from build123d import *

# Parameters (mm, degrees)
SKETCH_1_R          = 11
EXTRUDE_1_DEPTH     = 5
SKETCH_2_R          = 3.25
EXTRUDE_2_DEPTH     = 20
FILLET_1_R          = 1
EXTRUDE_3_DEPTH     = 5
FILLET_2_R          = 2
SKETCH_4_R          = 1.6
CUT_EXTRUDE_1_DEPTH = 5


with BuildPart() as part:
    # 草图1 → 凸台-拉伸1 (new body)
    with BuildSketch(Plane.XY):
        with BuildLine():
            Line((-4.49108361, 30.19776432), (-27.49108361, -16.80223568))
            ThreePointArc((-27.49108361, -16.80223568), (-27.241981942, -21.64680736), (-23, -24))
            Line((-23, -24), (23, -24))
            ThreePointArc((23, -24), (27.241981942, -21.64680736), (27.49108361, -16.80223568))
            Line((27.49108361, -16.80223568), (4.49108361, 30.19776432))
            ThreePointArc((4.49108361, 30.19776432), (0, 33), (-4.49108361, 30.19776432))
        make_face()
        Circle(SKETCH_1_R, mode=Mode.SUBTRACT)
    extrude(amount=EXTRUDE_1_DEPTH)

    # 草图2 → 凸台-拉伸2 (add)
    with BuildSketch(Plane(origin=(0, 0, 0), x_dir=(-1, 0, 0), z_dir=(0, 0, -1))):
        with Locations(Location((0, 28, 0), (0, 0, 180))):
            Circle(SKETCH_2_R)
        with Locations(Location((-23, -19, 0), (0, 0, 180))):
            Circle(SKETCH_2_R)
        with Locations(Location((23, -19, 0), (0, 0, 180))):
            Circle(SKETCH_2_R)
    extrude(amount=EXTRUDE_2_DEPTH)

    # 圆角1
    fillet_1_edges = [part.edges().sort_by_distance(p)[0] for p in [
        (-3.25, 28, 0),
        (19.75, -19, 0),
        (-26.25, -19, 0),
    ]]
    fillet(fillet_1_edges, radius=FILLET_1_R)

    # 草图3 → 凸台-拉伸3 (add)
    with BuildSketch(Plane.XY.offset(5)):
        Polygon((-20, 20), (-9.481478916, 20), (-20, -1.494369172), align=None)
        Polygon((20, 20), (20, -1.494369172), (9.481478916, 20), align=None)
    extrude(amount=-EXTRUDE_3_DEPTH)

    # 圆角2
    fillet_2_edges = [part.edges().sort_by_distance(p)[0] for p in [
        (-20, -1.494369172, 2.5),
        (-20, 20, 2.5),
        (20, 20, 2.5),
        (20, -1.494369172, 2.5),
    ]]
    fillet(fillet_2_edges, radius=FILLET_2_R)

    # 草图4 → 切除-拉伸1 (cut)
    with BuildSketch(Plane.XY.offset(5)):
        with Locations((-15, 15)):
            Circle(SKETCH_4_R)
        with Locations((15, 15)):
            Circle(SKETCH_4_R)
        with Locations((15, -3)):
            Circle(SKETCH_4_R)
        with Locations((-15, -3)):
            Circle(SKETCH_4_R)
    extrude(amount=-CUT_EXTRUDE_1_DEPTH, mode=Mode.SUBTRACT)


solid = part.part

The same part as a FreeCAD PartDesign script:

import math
import FreeCAD as App
import Part
import Sketcher

V = App.Vector
Q = App.Units.Quantity


def edges_at(feature, points):
    """Names of the edges that pass closest to the given points."""
    edges = feature.Shape.Edges
    near = lambda p: min(range(len(edges)), key=lambda i: edges[i].distToShape(Part.Vertex(*p))[0])
    return sorted({f"Edge{near(p) + 1}" for p in points})

doc = App.newDocument("Part")
params = doc.addObject("Spreadsheet::Sheet", "Params")
for row, (alias, value) in enumerate([
    ("sketch1_diameter", "22 mm"),
    ("sketch1_radius", "5 mm"),
    ("sketch1_width", "46 mm"),
    ("pad1_length", "5 mm"),
    ("sketch2_diameter", "6.5 mm"),
    ("pad2_length", "20 mm"),
    ("fillet_radius", "1 mm"),
    ("pad3_length", "5 mm"),
    ("fillet2_radius", "2 mm"),
    ("sketch4_diameter", "3.2 mm"),
    ("pocket1_length", "5 mm"),
], start=1):
    params.set(f"A{row}", alias)
    params.set(f"B{row}", "=" + value)
    params.setAlias(f"B{row}", alias)

body = doc.addObject("PartDesign::Body", "Body")

sketch1 = body.newObject("Sketcher::SketchObject", "Sketch")
sketch1.AttachmentSupport = (doc.getObject("XY_Plane"), [""])
sketch1.MapMode = "FlatFace"
sketch1.addGeometry([
    Part.LineSegment(V(-4, 30, 0), V(-27, -17, 0)),
    Part.ArcOfCircle(Part.Circle(V(-23, -19, 0), V(0, 0, 1), 5), math.radians(154), math.radians(270)),
    Part.LineSegment(V(-23, -24, 0), V(23, -24, 0)),
    Part.ArcOfCircle(Part.Circle(V(23, -19, 0), V(0, 0, 1), 5), math.radians(-90), math.radians(26)),
    Part.LineSegment(V(27, -17, 0), V(4, 30, 0)),
    Part.ArcOfCircle(Part.Circle(V(0, 28, 0), V(0, 0, 1), 5), math.radians(26), math.radians(154)),
    Part.Circle(V(0, 0, 0), V(0, 0, 1), 11),
], False)
sketch1.addConstraint([
    Sketcher.Constraint("Tangent", 0, 2, 1, 1),
    Sketcher.Constraint("Tangent", 1, 2, 2, 1),
    Sketcher.Constraint("Tangent", 2, 2, 3, 1),
    Sketcher.Constraint("Tangent", 3, 2, 4, 1),
    Sketcher.Constraint("Tangent", 4, 2, 5, 1),
    Sketcher.Constraint("Tangent", 5, 2, 0, 1),
    Sketcher.Constraint("Horizontal", 2),
    Sketcher.Constraint("Coincident", 6, 3, -1, 1),
    Sketcher.Constraint("Equal", 1, 3),
    Sketcher.Constraint("Equal", 3, 5),
    Sketcher.Constraint("Symmetric", 0, 2, 3, 2, -2),
    Sketcher.Constraint("Diameter", 6, Q("22 mm")),
    Sketcher.Constraint("Radius", 1, Q("5 mm")),
    Sketcher.Constraint("DistanceX", 2, 1, 2, 2, Q("46 mm")),
    Sketcher.Constraint("DistanceY", 1, 3, -1, 1, Q("19 mm")),
    Sketcher.Constraint("DistanceY", -1, 1, 5, 3, Q("28 mm")),
])
sketch1.setExpression("Constraints[11]", "Params.sketch1_diameter")
sketch1.setExpression("Constraints[12]", "Params.sketch1_radius")
sketch1.setExpression("Constraints[13]", "Params.sketch1_width")
pad1 = body.newObject("PartDesign::Pad", "Pad")
pad1.Profile = sketch1
pad1.setExpression("Length", "Params.pad1_length")

sketch2 = body.newObject("Sketcher::SketchObject", "Sketch001")
sketch2.AttachmentSupport = (doc.getObject("XY_Plane"), [""])
sketch2.MapMode = "FlatFace"
sketch2.addGeometry([
    Part.Circle(V(0, 28, 0), V(0, 0, 1), 3.2),
    Part.Circle(V(23, -19, 0), V(0, 0, 1), 3.2),
    Part.Circle(V(-23, -19, 0), V(0, 0, 1), 3.2),
], False)
sketch2.addConstraint([
    Sketcher.Constraint("Equal", 0, 1),
    Sketcher.Constraint("Equal", 1, 2),
    Sketcher.Constraint("Symmetric", 1, 3, 2, 3, -2),
    Sketcher.Constraint("PointOnObject", 0, 3, -2),
    Sketcher.Constraint("Diameter", 0, Q("6.5 mm")),
    Sketcher.Constraint("DistanceY", -1, 1, 0, 3, Q("28 mm")),
    Sketcher.Constraint("DistanceX", -1, 1, 1, 3, Q("23 mm")),
    Sketcher.Constraint("DistanceY", 1, 3, -1, 1, Q("19 mm")),
])
sketch2.setExpression("Constraints[4]", "Params.sketch2_diameter")
pad2 = body.newObject("PartDesign::Pad", "Pad001")
pad2.Profile = sketch2
pad2.setExpression("Length", "Params.pad2_length")
pad2.Reversed = True
doc.recompute()

fillet = body.newObject("PartDesign::Fillet", "Fillet")
fillet.Base = (pad2, edges_at(pad2, [(-3.25, 28, 0), (19.75, -19, 0), (-26.25, -19, 0)]))
fillet.setExpression("Radius", "Params.fillet_radius")

sketch3 = body.newObject("Sketcher::SketchObject", "Sketch002")
sketch3.AttachmentSupport = (doc.getObject("XY_Plane"), [""])
sketch3.MapMode = "FlatFace"
sketch3.AttachmentOffset = App.Placement(V(0, 0, 5), App.Rotation())
sketch3.addGeometry([
    Part.LineSegment(V(-9, 20, 0), V(-20, 20, 0)),
    Part.LineSegment(V(-20, 20, 0), V(-20, -1, 0)),
    Part.LineSegment(V(-20, -1, 0), V(-9, 20, 0)),
    Part.LineSegment(V(20, -1, 0), V(20, 20, 0)),
    Part.LineSegment(V(20, 20, 0), V(9, 20, 0)),
    Part.LineSegment(V(9, 20, 0), V(20, -1, 0)),
], False)
sketch3.addConstraint([
    Sketcher.Constraint("Coincident", 0, 2, 1, 1),
    Sketcher.Constraint("Coincident", 1, 2, 2, 1),
    Sketcher.Constraint("Coincident", 2, 2, 0, 1),
    Sketcher.Constraint("Coincident", 3, 2, 4, 1),
    Sketcher.Constraint("Coincident", 4, 2, 5, 1),
    Sketcher.Constraint("Coincident", 5, 2, 3, 1),
    Sketcher.Constraint("Horizontal", 0),
    Sketcher.Constraint("Vertical", 1),
    Sketcher.Constraint("Vertical", 3),
    Sketcher.Constraint("Horizontal", 4),
    Sketcher.Constraint("Symmetric", 0, 2, 3, 2, -2),
    Sketcher.Constraint("Horizontal", 1, 2, 5, 2),
    Sketcher.Constraint("Equal", 0, 4),
    Sketcher.Constraint("DistanceX", 0, 2, -1, 1, Q("20 mm")),
    Sketcher.Constraint("DistanceY", -1, 1, 0, 2, Q("20 mm")),
    Sketcher.Constraint("DistanceX", 0, 2, 0, 1, Q("10.518521 mm")),
    Sketcher.Constraint("DistanceY", 1, 2, 1, 1, Q("21.494369 mm")),
])
pad3 = body.newObject("PartDesign::Pad", "Pad002")
pad3.Profile = sketch3
pad3.setExpression("Length", "Params.pad3_length")
pad3.Reversed = True
doc.recompute()

fillet2 = body.newObject("PartDesign::Fillet", "Fillet001")
fillet2.Base = (pad3, edges_at(pad3, [
    (-20, -1.494, 2.5),
    (-20, 20, 2.5),
    (20, 20, 2.5),
    (20, -1.494, 2.5),
]))
fillet2.setExpression("Radius", "Params.fillet2_radius")

sketch4 = body.newObject("Sketcher::SketchObject", "Sketch003")
sketch4.AttachmentSupport = (doc.getObject("XY_Plane"), [""])
sketch4.MapMode = "FlatFace"
sketch4.AttachmentOffset = App.Placement(V(0, 0, 5), App.Rotation())
sketch4.addGeometry([
    Part.Circle(V(-15, 15, 0), V(0, 0, 1), 1.6),
    Part.Circle(V(15, 15, 0), V(0, 0, 1), 1.6),
    Part.Circle(V(15, -3, 0), V(0, 0, 1), 1.6),
    Part.Circle(V(-15, -3, 0), V(0, 0, 1), 1.6),
], False)
sketch4.addConstraint([
    Sketcher.Constraint("Equal", 0, 1),
    Sketcher.Constraint("Equal", 1, 2),
    Sketcher.Constraint("Equal", 2, 3),
    Sketcher.Constraint("Symmetric", 0, 3, 1, 3, -2),
    Sketcher.Constraint("Symmetric", 2, 3, 3, 3, -2),
    Sketcher.Constraint("Vertical", 1, 3, 2, 3),
    Sketcher.Constraint("Diameter", 0, Q("3.2 mm")),
    Sketcher.Constraint("DistanceX", 0, 3, -1, 1, Q("15 mm")),
    Sketcher.Constraint("DistanceY", -1, 1, 0, 3, Q("15 mm")),
    Sketcher.Constraint("DistanceY", 2, 3, -1, 1, Q("3 mm")),
])
sketch4.setExpression("Constraints[6]", "Params.sketch4_diameter")
pocket1 = body.newObject("PartDesign::Pocket", "Pocket")
pocket1.Profile = sketch4
pocket1.setExpression("Length", "Params.pocket1_length")

doc.recompute()
